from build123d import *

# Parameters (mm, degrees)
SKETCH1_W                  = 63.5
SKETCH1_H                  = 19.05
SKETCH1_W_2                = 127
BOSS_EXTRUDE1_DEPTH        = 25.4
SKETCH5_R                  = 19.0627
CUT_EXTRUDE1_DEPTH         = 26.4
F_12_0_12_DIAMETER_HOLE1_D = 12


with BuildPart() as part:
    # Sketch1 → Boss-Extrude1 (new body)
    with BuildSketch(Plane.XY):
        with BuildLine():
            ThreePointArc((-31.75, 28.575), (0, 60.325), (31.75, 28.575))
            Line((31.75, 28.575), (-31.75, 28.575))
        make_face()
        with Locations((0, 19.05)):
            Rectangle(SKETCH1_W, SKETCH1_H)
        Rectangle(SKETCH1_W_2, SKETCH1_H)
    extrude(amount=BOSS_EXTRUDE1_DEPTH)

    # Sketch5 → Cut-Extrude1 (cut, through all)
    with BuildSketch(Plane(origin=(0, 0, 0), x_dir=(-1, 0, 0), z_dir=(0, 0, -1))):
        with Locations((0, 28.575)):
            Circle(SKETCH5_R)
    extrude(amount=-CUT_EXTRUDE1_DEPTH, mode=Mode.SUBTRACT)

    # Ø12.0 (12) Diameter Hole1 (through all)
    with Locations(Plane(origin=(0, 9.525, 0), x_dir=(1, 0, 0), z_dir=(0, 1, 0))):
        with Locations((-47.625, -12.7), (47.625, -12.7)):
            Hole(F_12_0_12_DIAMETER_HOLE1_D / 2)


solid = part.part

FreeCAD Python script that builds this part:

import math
import FreeCAD as App
import Part
import Sketcher

V = App.Vector
Q = App.Units.Quantity

doc = App.newDocument("Part")
params = doc.addObject("Spreadsheet::Sheet", "Params")
for row, (alias, value) in enumerate([
    ("sketch1_width", "5 in"),
    ("sketch1_radius", "1.25 in"),
    ("sketch1_height", "0.75 in"),
    ("pad1_length", "1 in"),
    ("sketch2_diameter", "1.501 in"),
    ("hole_diameter", "12 mm"),
], start=1):
    params.set(f"A{row}", alias)
    params.set(f"B{row}", "=" + value)
    params.setAlias(f"B{row}", alias)

body = doc.addObject("PartDesign::Body", "Body")

# Sketch on XY plane
sketch1 = body.newObject("Sketcher::SketchObject", "Sketch")
sketch1.AttachmentSupport = (doc.getObject("XY_Plane"), [""])
sketch1.MapMode = "FlatFace"
sketch1.addGeometry(Part.ArcOfCircle(Part.Circle(V(0, 28.575, 0), V(0, 0, 1), 31.75), math.radians(0), math.radians(180)), False)
sketch1.addGeometry(Part.LineSegment(V(-31.75, 28.575, 0), V(-31.75, 9.525, 0)), False)
sketch1.addGeometry(Part.LineSegment(V(-31.75, 9.525, 0), V(-63.5, 9.525, 0)), False)
sketch1.addGeometry(Part.LineSegment(V(-63.5, 9.525, 0), V(-63.5, -9.525, 0)), False)
sketch1.addGeometry(Part.LineSegment(V(-63.5, -9.525, 0), V(63.5, -9.525, 0)), False)
sketch1.addGeometry(Part.LineSegment(V(63.5, -9.525, 0), V(63.5, 9.525, 0)), False)
sketch1.addGeometry(Part.LineSegment(V(63.5, 9.525, 0), V(31.75, 9.525, 0)), False)
sketch1.addGeometry(Part.LineSegment(V(31.75, 9.525, 0), V(31.75, 28.575, 0)), False)
sketch1.addConstraint(Sketcher.Constraint("Tangent", 0, 2, 1, 1))
sketch1.addConstraint(Sketcher.Constraint("Coincident", 1, 2, 2, 1))
sketch1.addConstraint(Sketcher.Constraint("Coincident", 2, 2, 3, 1))
sketch1.addConstraint(Sketcher.Constraint("Coincident", 3, 2, 4, 1))
sketch1.addConstraint(Sketcher.Constraint("Coincident", 4, 2, 5, 1))
sketch1.addConstraint(Sketcher.Constraint("Coincident", 5, 2, 6, 1))
sketch1.addConstraint(Sketcher.Constraint("Coincident", 6, 2, 7, 1))
sketch1.addConstraint(Sketcher.Constraint("Tangent", 7, 2, 0, 1))
sketch1.addConstraint(Sketcher.Constraint("Vertical", 1))
sketch1.addConstraint(Sketcher.Constraint("Horizontal", 2))
sketch1.addConstraint(Sketcher.Constraint("Vertical", 3))
sketch1.addConstraint(Sketcher.Constraint("Horizontal", 4))
sketch1.addConstraint(Sketcher.Constraint("Vertical", 5))
sketch1.addConstraint(Sketcher.Constraint("Horizontal", 6))
sketch1.addConstraint(Sketcher.Constraint("Vertical", 7))
sketch1.addConstraint(Sketcher.Constraint("Symmetric", 2, 2, 4, 2, -1, 1))
sketch1.addConstraint(Sketcher.Constraint("Symmetric", 1, 2, 6, 2, -2))
sketch1.addConstraint(Sketcher.Constraint("Equal", 1, 3))
sketch1.addConstraint(Sketcher.Constraint("DistanceX", 4, 1, 4, 2, Q("5 in")))
sketch1.addConstraint(Sketcher.Constraint("Radius", 0, Q("1.25 in")))
sketch1.addConstraint(Sketcher.Constraint("DistanceY", 1, 2, 1, 1, Q("0.75 in")))
sketch1.setExpression("Constraints[18]", "Params.sketch1_width")
sketch1.setExpression("Constraints[19]", "Params.sketch1_radius")
sketch1.setExpression("Constraints[20]", "Params.sketch1_height")
pad1 = body.newObject("PartDesign::Pad", "Pad")
pad1.Profile = sketch1
pad1.setExpression("Length", "Params.pad1_length")

# Sketch on XY plane
sketch2 = body.newObject("Sketcher::SketchObject", "Sketch001")
sketch2.AttachmentSupport = (doc.getObject("XY_Plane"), [""])
sketch2.MapMode = "FlatFace"
sketch2.addGeometry(Part.Circle(V(0, 28.575, 0), V(0, 0, 1), 19.0627), False)
sketch2.addConstraint(Sketcher.Constraint("PointOnObject", 0, 3, -2))
sketch2.addConstraint(Sketcher.Constraint("Diameter", 0, Q("1.501 in")))
sketch2.addConstraint(Sketcher.Constraint("DistanceY", -1, 1, 0, 3, Q("1.125 in")))
sketch2.setExpression("Constraints[1]", "Params.sketch2_diameter")
pocket1 = body.newObject("PartDesign::Pocket", "Pocket")
pocket1.Profile = sketch2
pocket1.Type = "ThroughAll"
pocket1.Reversed = True

# Sketch on XZ plane
sketch3 = body.newObject("Sketcher::SketchObject", "Sketch002")
sketch3.AttachmentSupport = (doc.getObject("XZ_Plane"), [""])
sketch3.MapMode = "FlatFace"
sketch3.AttachmentOffset = App.Placement(V(0, 0, -0.375 * 25.4), App.Rotation())
sketch3.addGeometry(Part.Circle(V(-47.625, 12.7, 0), V(0, 0, 1), 6), False)
sketch3.addGeometry(Part.Circle(V(47.625, 12.7, 0), V(0, 0, 1), 6), False)
sketch3.addConstraint(Sketcher.Constraint("Equal", 0, 1))
sketch3.addConstraint(Sketcher.Constraint("Symmetric", 0, 3, 1, 3, -2))
sketch3.addConstraint(Sketcher.Constraint("DistanceY", -1, 1, 0, 3, Q("0.5 in")))
sketch3.addConstraint(Sketcher.Constraint("Diameter", 0, Q("12 mm")))
sketch3.addConstraint(Sketcher.Constraint("DistanceX", 0, 3, 1, 3, Q("3.75 in")))
doc.recompute()
hole = body.newObject("PartDesign::Hole", "Hole")
hole.Profile = sketch3
hole.ThreadType = "None"
hole.setExpression("Diameter", "Params.hole_diameter")
hole.DepthType = "ThroughAll"
hole.Reversed = True

doc.recompute()
